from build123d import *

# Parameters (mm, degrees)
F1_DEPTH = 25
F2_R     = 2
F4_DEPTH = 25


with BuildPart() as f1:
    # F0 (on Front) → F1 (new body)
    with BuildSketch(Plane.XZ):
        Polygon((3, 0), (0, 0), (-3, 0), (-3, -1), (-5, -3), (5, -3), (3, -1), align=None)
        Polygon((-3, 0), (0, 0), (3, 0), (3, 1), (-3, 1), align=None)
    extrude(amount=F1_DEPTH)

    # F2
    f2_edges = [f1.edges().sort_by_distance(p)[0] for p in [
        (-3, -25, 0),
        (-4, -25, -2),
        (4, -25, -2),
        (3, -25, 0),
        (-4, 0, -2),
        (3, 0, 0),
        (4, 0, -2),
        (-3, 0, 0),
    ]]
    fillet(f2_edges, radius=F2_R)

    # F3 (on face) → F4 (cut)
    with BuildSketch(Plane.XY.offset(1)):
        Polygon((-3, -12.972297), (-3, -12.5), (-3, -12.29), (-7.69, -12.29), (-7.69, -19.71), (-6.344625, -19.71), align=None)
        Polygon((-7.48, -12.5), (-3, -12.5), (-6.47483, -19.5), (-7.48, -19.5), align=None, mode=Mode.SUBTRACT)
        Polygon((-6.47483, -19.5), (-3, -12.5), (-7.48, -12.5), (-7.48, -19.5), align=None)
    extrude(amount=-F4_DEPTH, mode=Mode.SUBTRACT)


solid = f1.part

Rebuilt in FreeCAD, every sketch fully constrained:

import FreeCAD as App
import Part
import Sketcher
Q = App.Units.Quantity


def edges_at(feature, points):
    """Names of the edges that pass closest to the given points."""
    edges = feature.Shape.Edges
    near = lambda p: min(range(len(edges)), key=lambda i: edges[i].distToShape(Part.Vertex(*p))[0])
    return sorted({f"Edge{near(p) + 1}" for p in points})

doc = App.newDocument("Part")
body = doc.addObject("PartDesign::Body", "Body")

sketch1 = body.newObject("Sketcher::SketchObject", "Sketch")
sketch1.AttachmentSupport = (doc.getObject("XZ_Plane"), [""])
sketch1.MapMode = "FlatFace"
sketch1.addGeometry(Part.LineSegment(App.Vector(-3, -1, 0), App.Vector(-5, -3, 0)), False)
sketch1.addGeometry(Part.LineSegment(App.Vector(-5, -3, 0), App.Vector(5, -3, 0)), False)
sketch1.addGeometry(Part.LineSegment(App.Vector(5, -3, 0), App.Vector(3, -1, 0)), False)
sketch1.addGeometry(Part.LineSegment(App.Vector(3, -1, 0), App.Vector(3, 1, 0)), False)
sketch1.addGeometry(Part.LineSegment(App.Vector(3, 1, 0), App.Vector(-3, 1, 0)), False)
sketch1.addGeometry(Part.LineSegment(App.Vector(-3, 1, 0), App.Vector(-3, -1, 0)), False)
sketch1.addConstraint(Sketcher.Constraint("Coincident", 0, 2, 1, 1))
sketch1.addConstraint(Sketcher.Constraint("Coincident", 1, 2, 2, 1))
sketch1.addConstraint(Sketcher.Constraint("Coincident", 2, 2, 3, 1))
sketch1.addConstraint(Sketcher.Constraint("Coincident", 3, 2, 4, 1))
sketch1.addConstraint(Sketcher.Constraint("Coincident", 4, 2, 5, 1))
sketch1.addConstraint(Sketcher.Constraint("Coincident", 5, 2, 0, 1))
sketch1.addConstraint(Sketcher.Constraint("Horizontal", 1))
sketch1.addConstraint(Sketcher.Constraint("Vertical", 3))
sketch1.addConstraint(Sketcher.Constraint("Horizontal", 4))
sketch1.addConstraint(Sketcher.Constraint("Vertical", 5))
sketch1.addConstraint(Sketcher.Constraint("Symmetric", 2, 2, 4, 2, -1, 1))
sketch1.addConstraint(Sketcher.Constraint("Perpendicular", 0, 2))
sketch1.addConstraint(Sketcher.Constraint("Horizontal", 2, 2, 5, 2))
sketch1.addConstraint(Sketcher.Constraint("Equal", 0, 2))
sketch1.addConstraint(Sketcher.Constraint("DistanceX", 1, 1, 1, 2, 10.0))
sketch1.addConstraint(Sketcher.Constraint("DistanceX", 4, 2, 4, 1, 6.0))
sketch1.addConstraint(Sketcher.Constraint("DistanceY", 3, 1, 3, 2, 2.0))
pad1 = body.newObject("PartDesign::Pad", "Pad")
pad1.Profile = sketch1
pad1.Length = 25
doc.recompute()

fillet = body.newObject("PartDesign::Fillet", "Fillet")
fillet.Base = (pad1, edges_at(pad1, [
    (-3, -25, 0),
    (-4, -25, -2),
    (4, -25, -2),
    (3, -25, 0),
    (-4, 0, -2),
    (3, 0, 0),
    (4, 0, -2),
    (-3, 0, 0),
]))
fillet.Radius = 2

sketch2 = body.newObject("Sketcher::SketchObject", "Sketch001")
sketch2.AttachmentSupport = (doc.getObject("XY_Plane"), [""])
sketch2.MapMode = "FlatFace"
sketch2.AttachmentOffset = App.Placement(App.Vector(0, 0, 1), App.Rotation())
sketch2.addGeometry(Part.LineSegment(App.Vector(-7.69, -19.71, 0), App.Vector(-6.344625, -19.71, 0)), False)
sketch2.addGeometry(Part.LineSegment(App.Vector(-6.344625, -19.71, 0), App.Vector(-3, -12.972297, 0)), False)
sketch2.addGeometry(Part.LineSegment(App.Vector(-3, -12.972297, 0), App.Vector(-3, -12.29, 0)), False)
sketch2.addGeometry(Part.LineSegment(App.Vector(-3, -12.29, 0), App.Vector(-7.69, -12.29, 0)), False)
sketch2.addGeometry(Part.LineSegment(App.Vector(-7.69, -12.29, 0), App.Vector(-7.69, -19.71, 0)), False)
sketch2.addConstraint(Sketcher.Constraint("Coincident", 0, 2, 1, 1))
sketch2.addConstraint(Sketcher.Constraint("Coincident", 1, 2, 2, 1))
sketch2.addConstraint(Sketcher.Constraint("Coincident", 2, 2, 3, 1))
sketch2.addConstraint(Sketcher.Constraint("Coincident", 3, 2, 4, 1))
sketch2.addConstraint(Sketcher.Constraint("Coincident", 4, 2, 0, 1))
sketch2.addConstraint(Sketcher.Constraint("Horizontal", 0))
sketch2.addConstraint(Sketcher.Constraint("Vertical", 2))
sketch2.addConstraint(Sketcher.Constraint("Horizontal", 3))
sketch2.addConstraint(Sketcher.Constraint("Vertical", 4))
sketch2.addConstraint(Sketcher.Constraint("DistanceX", 1, 2, -1, 1, 3.0))
sketch2.addConstraint(Sketcher.Constraint("Angle", 1, Q("63.599999 deg")))
sketch2.addConstraint(Sketcher.Constraint("DistanceX", 3, 2, 3, 1, 4.69))
sketch2.addConstraint(Sketcher.Constraint("DistanceY", 4, 2, 4, 1, 7.42))
sketch2.addConstraint(Sketcher.Constraint("DistanceY", 0, 2, -1, 1, 19.71))
sketch2.addConstraint(Sketcher.Constraint("DistanceX", 0, 1, 0, 2, 1.345375))
pocket1 = body.newObject("PartDesign::Pocket", "Pocket")
pocket1.Profile = sketch2
pocket1.Length = 25

doc.recompute()
